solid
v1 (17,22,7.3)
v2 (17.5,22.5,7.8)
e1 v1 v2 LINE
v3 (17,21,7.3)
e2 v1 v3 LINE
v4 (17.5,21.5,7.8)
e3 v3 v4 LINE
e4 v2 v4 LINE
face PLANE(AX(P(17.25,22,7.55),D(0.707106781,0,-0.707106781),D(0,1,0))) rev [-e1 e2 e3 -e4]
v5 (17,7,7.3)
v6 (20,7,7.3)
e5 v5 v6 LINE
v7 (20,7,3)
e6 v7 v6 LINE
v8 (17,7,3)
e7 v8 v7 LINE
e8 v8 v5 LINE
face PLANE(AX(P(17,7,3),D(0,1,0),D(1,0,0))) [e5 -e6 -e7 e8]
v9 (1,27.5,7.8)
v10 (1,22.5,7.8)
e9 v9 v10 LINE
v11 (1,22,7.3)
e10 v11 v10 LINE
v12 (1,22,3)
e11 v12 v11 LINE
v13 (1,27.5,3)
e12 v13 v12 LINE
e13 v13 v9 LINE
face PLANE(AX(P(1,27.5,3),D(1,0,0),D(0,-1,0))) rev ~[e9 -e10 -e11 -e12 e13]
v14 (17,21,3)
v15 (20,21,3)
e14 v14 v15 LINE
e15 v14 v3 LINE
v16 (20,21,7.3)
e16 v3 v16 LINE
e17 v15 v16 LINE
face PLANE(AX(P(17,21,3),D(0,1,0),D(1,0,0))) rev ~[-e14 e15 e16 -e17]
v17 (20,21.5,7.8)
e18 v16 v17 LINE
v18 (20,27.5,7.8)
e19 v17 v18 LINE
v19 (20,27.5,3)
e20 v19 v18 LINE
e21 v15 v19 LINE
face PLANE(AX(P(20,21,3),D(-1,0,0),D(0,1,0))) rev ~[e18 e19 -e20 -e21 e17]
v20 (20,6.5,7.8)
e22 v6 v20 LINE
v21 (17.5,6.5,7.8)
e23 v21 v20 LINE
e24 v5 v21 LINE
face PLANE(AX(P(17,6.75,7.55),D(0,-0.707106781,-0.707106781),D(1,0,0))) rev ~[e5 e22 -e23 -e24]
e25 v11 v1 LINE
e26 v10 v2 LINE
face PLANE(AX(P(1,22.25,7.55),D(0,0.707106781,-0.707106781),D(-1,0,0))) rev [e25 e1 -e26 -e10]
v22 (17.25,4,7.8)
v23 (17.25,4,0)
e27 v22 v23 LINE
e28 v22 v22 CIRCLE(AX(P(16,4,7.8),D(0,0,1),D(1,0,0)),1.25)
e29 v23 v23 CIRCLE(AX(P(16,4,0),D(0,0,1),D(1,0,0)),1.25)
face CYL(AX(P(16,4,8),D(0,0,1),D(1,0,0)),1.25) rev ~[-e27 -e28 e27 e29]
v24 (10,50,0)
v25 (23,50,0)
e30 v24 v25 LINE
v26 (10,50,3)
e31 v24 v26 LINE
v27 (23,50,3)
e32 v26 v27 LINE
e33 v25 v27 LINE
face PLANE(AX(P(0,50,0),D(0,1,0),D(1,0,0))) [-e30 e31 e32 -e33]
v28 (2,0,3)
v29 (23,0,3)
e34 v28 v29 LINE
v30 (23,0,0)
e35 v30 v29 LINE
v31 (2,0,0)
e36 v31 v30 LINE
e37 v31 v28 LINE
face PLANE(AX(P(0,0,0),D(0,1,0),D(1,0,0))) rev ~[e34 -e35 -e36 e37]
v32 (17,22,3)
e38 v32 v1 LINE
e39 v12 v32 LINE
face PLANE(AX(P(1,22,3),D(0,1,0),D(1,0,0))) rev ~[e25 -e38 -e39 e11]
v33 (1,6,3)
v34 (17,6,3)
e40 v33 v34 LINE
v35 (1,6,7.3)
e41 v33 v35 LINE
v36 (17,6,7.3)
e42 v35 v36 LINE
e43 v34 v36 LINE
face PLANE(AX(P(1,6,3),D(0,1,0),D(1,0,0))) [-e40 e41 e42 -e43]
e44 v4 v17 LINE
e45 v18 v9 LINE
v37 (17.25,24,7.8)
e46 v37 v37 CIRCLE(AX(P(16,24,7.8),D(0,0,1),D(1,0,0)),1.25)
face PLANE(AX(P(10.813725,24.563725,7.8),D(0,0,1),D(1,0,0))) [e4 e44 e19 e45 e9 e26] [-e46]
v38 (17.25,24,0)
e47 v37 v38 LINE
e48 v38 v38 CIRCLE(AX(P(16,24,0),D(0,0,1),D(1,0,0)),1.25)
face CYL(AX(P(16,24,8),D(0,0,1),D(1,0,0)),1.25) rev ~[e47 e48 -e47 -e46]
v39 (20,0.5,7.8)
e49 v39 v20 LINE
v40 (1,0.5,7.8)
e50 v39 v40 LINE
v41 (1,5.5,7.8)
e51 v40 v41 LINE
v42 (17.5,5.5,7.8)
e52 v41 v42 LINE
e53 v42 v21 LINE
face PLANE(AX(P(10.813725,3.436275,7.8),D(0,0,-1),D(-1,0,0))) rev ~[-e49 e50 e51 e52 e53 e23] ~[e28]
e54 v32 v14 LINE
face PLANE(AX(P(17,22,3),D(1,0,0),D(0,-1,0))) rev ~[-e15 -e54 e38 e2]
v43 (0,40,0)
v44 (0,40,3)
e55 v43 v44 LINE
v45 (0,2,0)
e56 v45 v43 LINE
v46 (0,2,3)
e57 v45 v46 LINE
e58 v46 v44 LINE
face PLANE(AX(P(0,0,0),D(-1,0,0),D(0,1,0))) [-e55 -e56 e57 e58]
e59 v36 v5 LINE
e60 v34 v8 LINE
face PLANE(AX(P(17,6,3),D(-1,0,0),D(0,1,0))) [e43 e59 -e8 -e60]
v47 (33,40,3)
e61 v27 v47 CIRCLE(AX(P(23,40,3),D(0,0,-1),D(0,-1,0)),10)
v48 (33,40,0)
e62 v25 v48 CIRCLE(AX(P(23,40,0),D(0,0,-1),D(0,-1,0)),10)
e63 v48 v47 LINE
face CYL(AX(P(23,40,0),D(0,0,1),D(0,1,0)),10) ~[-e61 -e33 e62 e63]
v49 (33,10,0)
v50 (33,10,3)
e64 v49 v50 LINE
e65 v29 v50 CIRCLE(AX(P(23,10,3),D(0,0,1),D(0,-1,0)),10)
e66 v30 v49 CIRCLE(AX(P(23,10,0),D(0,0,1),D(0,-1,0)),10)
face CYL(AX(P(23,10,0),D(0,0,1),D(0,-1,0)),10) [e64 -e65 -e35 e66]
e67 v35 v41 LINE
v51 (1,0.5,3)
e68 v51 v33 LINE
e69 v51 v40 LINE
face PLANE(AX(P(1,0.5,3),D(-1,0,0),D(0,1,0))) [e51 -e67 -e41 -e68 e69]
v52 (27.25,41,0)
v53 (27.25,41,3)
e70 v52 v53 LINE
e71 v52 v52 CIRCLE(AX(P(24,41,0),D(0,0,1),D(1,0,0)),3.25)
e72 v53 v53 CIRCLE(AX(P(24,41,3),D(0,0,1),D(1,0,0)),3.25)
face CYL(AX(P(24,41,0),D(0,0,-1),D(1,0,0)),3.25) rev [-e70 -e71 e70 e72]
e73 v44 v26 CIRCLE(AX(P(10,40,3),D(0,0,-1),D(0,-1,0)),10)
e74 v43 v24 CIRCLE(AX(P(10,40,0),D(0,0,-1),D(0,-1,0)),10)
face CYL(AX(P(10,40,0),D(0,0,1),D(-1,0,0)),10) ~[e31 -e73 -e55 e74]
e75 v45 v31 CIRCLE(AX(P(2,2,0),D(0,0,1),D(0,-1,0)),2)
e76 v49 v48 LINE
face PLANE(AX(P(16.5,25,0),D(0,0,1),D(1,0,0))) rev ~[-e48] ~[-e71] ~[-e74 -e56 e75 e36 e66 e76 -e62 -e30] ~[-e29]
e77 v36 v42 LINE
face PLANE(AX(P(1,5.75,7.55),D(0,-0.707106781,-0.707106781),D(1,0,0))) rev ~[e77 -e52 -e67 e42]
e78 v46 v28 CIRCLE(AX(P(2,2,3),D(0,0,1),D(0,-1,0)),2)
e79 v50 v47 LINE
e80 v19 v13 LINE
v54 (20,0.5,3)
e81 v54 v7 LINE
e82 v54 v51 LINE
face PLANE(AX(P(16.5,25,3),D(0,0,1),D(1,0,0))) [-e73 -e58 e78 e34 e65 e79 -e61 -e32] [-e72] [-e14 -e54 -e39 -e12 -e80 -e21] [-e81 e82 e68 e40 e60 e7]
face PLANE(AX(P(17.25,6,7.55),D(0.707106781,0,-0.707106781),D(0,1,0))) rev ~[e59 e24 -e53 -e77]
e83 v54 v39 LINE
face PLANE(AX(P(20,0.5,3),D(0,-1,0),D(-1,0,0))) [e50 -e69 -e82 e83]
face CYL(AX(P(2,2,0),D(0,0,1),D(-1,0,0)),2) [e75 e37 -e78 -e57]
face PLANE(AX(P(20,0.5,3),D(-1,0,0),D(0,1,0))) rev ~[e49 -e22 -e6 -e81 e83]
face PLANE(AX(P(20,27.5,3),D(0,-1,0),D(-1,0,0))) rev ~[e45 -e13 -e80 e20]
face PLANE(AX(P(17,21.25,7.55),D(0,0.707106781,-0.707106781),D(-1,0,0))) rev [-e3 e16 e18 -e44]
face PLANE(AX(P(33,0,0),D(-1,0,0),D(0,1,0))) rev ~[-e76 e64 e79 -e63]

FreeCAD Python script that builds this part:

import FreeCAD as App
import Part
import Sketcher


def edges_at(feature, points):
    """Names of the edges that pass closest to the given points."""
    edges = feature.Shape.Edges
    near = lambda p: min(range(len(edges)), key=lambda i: edges[i].distToShape(Part.Vertex(*p))[0])
    return sorted({f"Edge{near(p) + 1}" for p in points})

doc = App.newDocument("Part")
body = doc.addObject("PartDesign::Body", "Body")

sketch1 = body.newObject("Sketcher::SketchObject", "Sketch")
sketch1.AttachmentSupport = (doc.getObject("XY_Plane"), [""])
sketch1.MapMode = "FlatFace"
sketch1.addGeometry(Part.LineSegment(App.Vector(0, 50, 0), App.Vector(0, 0, 0)), False)
sketch1.addGeometry(Part.LineSegment(App.Vector(0, 0, 0), App.Vector(33, 0, 0)), False)
sketch1.addGeometry(Part.LineSegment(App.Vector(33, 0, 0), App.Vector(33, 50, 0)), False)
sketch1.addGeometry(Part.LineSegment(App.Vector(33, 50, 0), App.Vector(0, 50, 0)), False)
sketch1.addGeometry(Part.Circle(App.Vector(24, 41, 0), App.Vector(0, 0, 1), 3.25), False)
sketch1.addConstraint(Sketcher.Constraint("Coincident", 0, 2, 1, 1))
sketch1.addConstraint(Sketcher.Constraint("Coincident", 1, 2, 2, 1))
sketch1.addConstraint(Sketcher.Constraint("Coincident", 2, 2, 3, 1))
sketch1.addConstraint(Sketcher.Constraint("Coincident", 3, 2, 0, 1))
sketch1.addConstraint(Sketcher.Constraint("Vertical", 0))
sketch1.addConstraint(Sketcher.Constraint("Horizontal", 1))
sketch1.addConstraint(Sketcher.Constraint("Vertical", 2))
sketch1.addConstraint(Sketcher.Constraint("Horizontal", 3))
sketch1.addConstraint(Sketcher.Constraint("Coincident", 0, 2, -1, 1))
sketch1.addConstraint(Sketcher.Constraint("Diameter", 4, 6.5))
sketch1.addConstraint(Sketcher.Constraint("DistanceX", 1, 1, 1, 2, 33.0))
sketch1.addConstraint(Sketcher.Constraint("DistanceY", 0, 2, 0, 1, 50.0))
sketch1.addConstraint(Sketcher.Constraint("DistanceX", -1, 1, 4, 3, 24.0))
sketch1.addConstraint(Sketcher.Constraint("DistanceY", -1, 1, 4, 3, 41.0))
pad1 = body.newObject("PartDesign::Pad", "Pad")
pad1.Profile = sketch1
pad1.Length = 3
doc.recompute()

fillet = body.newObject("PartDesign::Fillet", "Fillet")
fillet.Base = (pad1, edges_at(pad1, [(0, 0, 1.5)]))
fillet.Radius = 2
doc.recompute()

fillet2 = body.newObject("PartDesign::Fillet", "Fillet001")
fillet2.Base = (fillet, edges_at(fillet, [(33, 0, 1.5), (0, 50, 1.5), (33, 50, 1.5)]))
fillet2.Radius = 10

sketch2 = body.newObject("Sketcher::SketchObject", "Sketch001")
sketch2.AttachmentSupport = (doc.getObject("XY_Plane"), [""])
sketch2.MapMode = "FlatFace"
sketch2.AttachmentOffset = App.Placement(App.Vector(0, 0, 3), App.Rotation())
sketch2.addGeometry(Part.LineSegment(App.Vector(20, 27.5, 0), App.Vector(1, 27.5, 0)), False)
sketch2.addGeometry(Part.LineSegment(App.Vector(1, 27.5, 0), App.Vector(1, 22, 0)), False)
sketch2.addGeometry(Part.LineSegment(App.Vector(1, 22, 0), App.Vector(17, 22, 0)), False)
sketch2.addGeometry(Part.LineSegment(App.Vector(17, 22, 0), App.Vector(17, 21, 0)), False)
sketch2.addGeometry(Part.LineSegment(App.Vector(17, 21, 0), App.Vector(20, 21, 0)), False)
sketch2.addGeometry(Part.LineSegment(App.Vector(20, 21, 0), App.Vector(20, 27.5, 0)), False)
sketch2.addGeometry(Part.LineSegment(App.Vector(1, 6, 0), App.Vector(1, 0.5, 0)), False)
sketch2.addGeometry(Part.LineSegment(App.Vector(1, 0.5, 0), App.Vector(20, 0.5, 0)), False)
sketch2.addGeometry(Part.LineSegment(App.Vector(20, 0.5, 0), App.Vector(20, 7, 0)), False)
sketch2.addGeometry(Part.LineSegment(App.Vector(20, 7, 0), App.Vector(17, 7, 0)), False)
sketch2.addGeometry(Part.LineSegment(App.Vector(17, 7, 0), App.Vector(17, 6, 0)), False)
sketch2.addGeometry(Part.LineSegment(App.Vector(17, 6, 0), App.Vector(1, 6, 0)), False)
sketch2.addConstraint(Sketcher.Constraint("Coincident", 0, 2, 1, 1))
sketch2.addConstraint(Sketcher.Constraint("Coincident", 1, 2, 2, 1))
sketch2.addConstraint(Sketcher.Constraint("Coincident", 2, 2, 3, 1))
sketch2.addConstraint(Sketcher.Constraint("Coincident", 3, 2, 4, 1))
sketch2.addConstraint(Sketcher.Constraint("Coincident", 4, 2, 5, 1))
sketch2.addConstraint(Sketcher.Constraint("Coincident", 5, 2, 0, 1))
sketch2.addConstraint(Sketcher.Constraint("Coincident", 6, 2, 7, 1))
sketch2.addConstraint(Sketcher.Constraint("Coincident", 7, 2, 8, 1))
sketch2.addConstraint(Sketcher.Constraint("Coincident", 8, 2, 9, 1))
sketch2.addConstraint(Sketcher.Constraint("Coincident", 9, 2, 10, 1))
sketch2.addConstraint(Sketcher.Constraint("Coincident", 10, 2, 11, 1))
sketch2.addConstraint(Sketcher.Constraint("Coincident", 11, 2, 6, 1))
sketch2.addConstraint(Sketcher.Constraint("Horizontal", 0))
sketch2.addConstraint(Sketcher.Constraint("Vertical", 1))
sketch2.addConstraint(Sketcher.Constraint("Horizontal", 2))
sketch2.addConstraint(Sketcher.Constraint("Vertical", 3))
sketch2.addConstraint(Sketcher.Constraint("Horizontal", 4))
sketch2.addConstraint(Sketcher.Constraint("Vertical", 5))
sketch2.addConstraint(Sketcher.Constraint("Vertical", 6))
sketch2.addConstraint(Sketcher.Constraint("Horizontal", 7))
sketch2.addConstraint(Sketcher.Constraint("Vertical", 8))
sketch2.addConstraint(Sketcher.Constraint("Horizontal", 9))
sketch2.addConstraint(Sketcher.Constraint("Vertical", 10))
sketch2.addConstraint(Sketcher.Constraint("Horizontal", 11))
sketch2.addConstraint(Sketcher.Constraint("Vertical", 1, 2, 6, 2))
sketch2.addConstraint(Sketcher.Constraint("Vertical", 5, 2, 7, 2))
sketch2.addConstraint(Sketcher.Constraint("Vertical", 3, 2, 9, 2))
sketch2.addConstraint(Sketcher.Constraint("Equal", 1, 6))
sketch2.addConstraint(Sketcher.Constraint("Equal", 5, 8))
sketch2.addConstraint(Sketcher.Constraint("DistanceX", 0, 2, 0, 1, 19.0))
sketch2.addConstraint(Sketcher.Constraint("DistanceX", 2, 1, 2, 2, 16.0))
sketch2.addConstraint(Sketcher.Constraint("DistanceY", 3, 2, 3, 1, 1.0))
sketch2.addConstraint(Sketcher.Constraint("DistanceY", 1, 2, 1, 1, 5.5))
sketch2.addConstraint(Sketcher.Constraint("DistanceX", -1, 1, 0, 2, 1.0))
sketch2.addConstraint(Sketcher.Constraint("DistanceY", -1, 1, 1, 2, 22.0))
sketch2.addConstraint(Sketcher.Constraint("DistanceY", -1, 1, 8, 2, 7.0))
pad2 = body.newObject("PartDesign::Pad", "Pad001")
pad2.Profile = sketch2
pad2.Length = 4.8

sketch3 = body.newObject("Sketcher::SketchObject", "Sketch002")
sketch3.AttachmentSupport = (doc.getObject("XY_Plane"), [""])
sketch3.MapMode = "FlatFace"
sketch3.AttachmentOffset = App.Placement(App.Vector(0, 0, 8), App.Rotation())
sketch3.addGeometry(Part.Circle(App.Vector(16, 24, 0), App.Vector(0, 0, 1), 1.25), False)
sketch3.addGeometry(Part.Circle(App.Vector(16, 4, 0), App.Vector(0, 0, 1), 1.25), False)
sketch3.addConstraint(Sketcher.Constraint("Equal", 0, 1))
sketch3.addConstraint(Sketcher.Constraint("Vertical", 0, 3, 1, 3))
sketch3.addConstraint(Sketcher.Constraint("Diameter", 0, 2.5))
sketch3.addConstraint(Sketcher.Constraint("DistanceX", -1, 1, 0, 3, 16.0))
sketch3.addConstraint(Sketcher.Constraint("DistanceY", -1, 1, 0, 3, 24.0))
sketch3.addConstraint(Sketcher.Constraint("DistanceY", -1, 1, 1, 3, 4.0))
pocket1 = body.newObject("PartDesign::Pocket", "Pocket")
pocket1.Profile = sketch3
pocket1.Type = "ThroughAll"
doc.recompute()

chamfer = body.newObject("PartDesign::Chamfer", "Chamfer")
chamfer.Base = (pocket1, edges_at(pocket1, [
    (9, 22, 7.8),
    (9, 6, 7.8),
    (17, 21.5, 7.8),
    (17, 6.5, 7.8),
    (18.5, 7, 7.8),
    (18.5, 21, 7.8),
]))
chamfer.Size = 0.5

doc.recompute()
